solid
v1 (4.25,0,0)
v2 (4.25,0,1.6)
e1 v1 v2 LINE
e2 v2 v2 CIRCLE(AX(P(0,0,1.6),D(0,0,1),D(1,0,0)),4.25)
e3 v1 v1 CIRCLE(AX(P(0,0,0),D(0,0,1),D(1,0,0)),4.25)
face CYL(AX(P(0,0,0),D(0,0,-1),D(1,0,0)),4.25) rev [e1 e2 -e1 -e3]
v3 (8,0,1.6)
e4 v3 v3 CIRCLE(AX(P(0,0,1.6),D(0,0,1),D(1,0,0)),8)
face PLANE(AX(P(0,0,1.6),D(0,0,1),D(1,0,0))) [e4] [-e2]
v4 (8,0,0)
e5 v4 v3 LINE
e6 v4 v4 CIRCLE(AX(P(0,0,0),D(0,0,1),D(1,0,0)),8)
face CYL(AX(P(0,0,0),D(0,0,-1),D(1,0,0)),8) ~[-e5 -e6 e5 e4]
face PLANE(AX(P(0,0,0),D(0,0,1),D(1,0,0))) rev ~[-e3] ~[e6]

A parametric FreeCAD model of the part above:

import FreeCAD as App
import Part
import Sketcher

V = App.Vector
Q = App.Units.Quantity

doc = App.newDocument("Part")
body = doc.addObject("PartDesign::Body", "Body")

# Sketch on XY plane
sketch1 = body.newObject("Sketcher::SketchObject", "Sketch")
sketch1.AttachmentSupport = (doc.getObject("XY_Plane"), [""])
sketch1.MapMode = "FlatFace"
sketch1.addGeometry([
    Part.Circle(V(0, 0, 0), V(0, 0, 1), 8),
    Part.Circle(V(0, 0, 0), V(0, 0, 1), 4.2),
], False)
sketch1.addConstraint([
    Sketcher.Constraint("Coincident", 0, 3, -1, 1),
    Sketcher.Constraint("Coincident", 1, 3, -1, 1),
    Sketcher.Constraint("Diameter", 0, Q("16 mm")),
    Sketcher.Constraint("Diameter", 1, Q("8.5 mm")),
])
pad1 = body.newObject("PartDesign::Pad", "Pad")
pad1.Profile = sketch1
pad1.Length = 1.6

doc.recompute()
